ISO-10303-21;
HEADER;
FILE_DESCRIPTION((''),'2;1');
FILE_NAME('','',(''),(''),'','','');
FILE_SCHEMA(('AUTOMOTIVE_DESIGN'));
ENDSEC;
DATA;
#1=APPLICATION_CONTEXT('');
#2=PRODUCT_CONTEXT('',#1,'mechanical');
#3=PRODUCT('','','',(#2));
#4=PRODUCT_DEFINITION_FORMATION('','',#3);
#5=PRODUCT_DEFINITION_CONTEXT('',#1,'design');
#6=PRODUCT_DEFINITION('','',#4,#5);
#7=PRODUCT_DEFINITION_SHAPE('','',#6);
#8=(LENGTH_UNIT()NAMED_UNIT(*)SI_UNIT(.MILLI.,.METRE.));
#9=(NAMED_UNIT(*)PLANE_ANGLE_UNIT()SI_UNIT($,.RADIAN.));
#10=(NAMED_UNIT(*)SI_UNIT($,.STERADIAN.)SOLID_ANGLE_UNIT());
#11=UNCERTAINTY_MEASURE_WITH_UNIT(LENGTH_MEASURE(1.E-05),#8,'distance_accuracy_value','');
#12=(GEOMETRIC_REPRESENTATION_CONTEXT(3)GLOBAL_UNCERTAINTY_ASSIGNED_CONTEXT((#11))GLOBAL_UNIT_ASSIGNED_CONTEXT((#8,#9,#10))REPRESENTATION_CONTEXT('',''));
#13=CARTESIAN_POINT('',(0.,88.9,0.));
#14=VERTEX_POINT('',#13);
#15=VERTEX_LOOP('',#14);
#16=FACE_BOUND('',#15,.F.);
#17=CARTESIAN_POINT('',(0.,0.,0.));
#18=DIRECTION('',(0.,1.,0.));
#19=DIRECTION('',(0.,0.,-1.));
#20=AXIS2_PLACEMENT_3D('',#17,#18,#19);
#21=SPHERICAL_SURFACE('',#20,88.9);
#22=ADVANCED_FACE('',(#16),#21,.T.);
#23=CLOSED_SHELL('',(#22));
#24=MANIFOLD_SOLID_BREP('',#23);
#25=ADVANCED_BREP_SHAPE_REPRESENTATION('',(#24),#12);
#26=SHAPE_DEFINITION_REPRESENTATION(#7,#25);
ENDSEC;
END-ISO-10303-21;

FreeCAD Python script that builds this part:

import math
import FreeCAD as App
import Part
import Sketcher
from FreeCAD import Vector
Q = App.Units.Quantity

doc = App.newDocument("Part")
params = doc.addObject("Spreadsheet::Sheet", "Params")
for row, (alias, value) in enumerate([
    ("sketch1_radius", "3.5 in"),
    ("revolution_angle", "360 deg"),
], start=1):
    params.set(f"A{row}", alias)
    params.set(f"B{row}", "=" + value)
    params.setAlias(f"B{row}", alias)

body = doc.addObject("PartDesign::Body", "Body")

# Sketch on YZ plane
sketch1 = body.newObject("Sketcher::SketchObject", "Sketch")
sketch1.AttachmentSupport = (doc.getObject("YZ_Plane"), [""])
sketch1.MapMode = "FlatFace"
sketch1.addGeometry([
    Part.ArcOfCircle(Part.Circle(Vector(0, 0, 0), Vector(0, 0, 1), 89), math.radians(180), math.radians(360)),
    Part.LineSegment(Vector(89, 0, 0), Vector(-89, 0, 0)),
], False)
sketch1.addConstraint([
    Sketcher.Constraint("Coincident", 0, 1, 1, 2),
    Sketcher.Constraint("Coincident", 1, 1, 0, 2),
    Sketcher.Constraint("Horizontal", 1),
    Sketcher.Constraint("Coincident", 0, 3, -1, 1),
    Sketcher.Constraint("PointOnObject", 0, 1, -1),
    Sketcher.Constraint("Radius", 0, Q("3.5 in")),
])
sketch1.setExpression("Constraints[5]", "Params.sketch1_radius")
revolution = body.newObject("PartDesign::Revolution", "Revolution")
revolution.Profile = sketch1
revolution.ReferenceAxis = (sketch1, ["H_Axis"])
revolution.setExpression("Angle", "Params.revolution_angle")

doc.recompute()
